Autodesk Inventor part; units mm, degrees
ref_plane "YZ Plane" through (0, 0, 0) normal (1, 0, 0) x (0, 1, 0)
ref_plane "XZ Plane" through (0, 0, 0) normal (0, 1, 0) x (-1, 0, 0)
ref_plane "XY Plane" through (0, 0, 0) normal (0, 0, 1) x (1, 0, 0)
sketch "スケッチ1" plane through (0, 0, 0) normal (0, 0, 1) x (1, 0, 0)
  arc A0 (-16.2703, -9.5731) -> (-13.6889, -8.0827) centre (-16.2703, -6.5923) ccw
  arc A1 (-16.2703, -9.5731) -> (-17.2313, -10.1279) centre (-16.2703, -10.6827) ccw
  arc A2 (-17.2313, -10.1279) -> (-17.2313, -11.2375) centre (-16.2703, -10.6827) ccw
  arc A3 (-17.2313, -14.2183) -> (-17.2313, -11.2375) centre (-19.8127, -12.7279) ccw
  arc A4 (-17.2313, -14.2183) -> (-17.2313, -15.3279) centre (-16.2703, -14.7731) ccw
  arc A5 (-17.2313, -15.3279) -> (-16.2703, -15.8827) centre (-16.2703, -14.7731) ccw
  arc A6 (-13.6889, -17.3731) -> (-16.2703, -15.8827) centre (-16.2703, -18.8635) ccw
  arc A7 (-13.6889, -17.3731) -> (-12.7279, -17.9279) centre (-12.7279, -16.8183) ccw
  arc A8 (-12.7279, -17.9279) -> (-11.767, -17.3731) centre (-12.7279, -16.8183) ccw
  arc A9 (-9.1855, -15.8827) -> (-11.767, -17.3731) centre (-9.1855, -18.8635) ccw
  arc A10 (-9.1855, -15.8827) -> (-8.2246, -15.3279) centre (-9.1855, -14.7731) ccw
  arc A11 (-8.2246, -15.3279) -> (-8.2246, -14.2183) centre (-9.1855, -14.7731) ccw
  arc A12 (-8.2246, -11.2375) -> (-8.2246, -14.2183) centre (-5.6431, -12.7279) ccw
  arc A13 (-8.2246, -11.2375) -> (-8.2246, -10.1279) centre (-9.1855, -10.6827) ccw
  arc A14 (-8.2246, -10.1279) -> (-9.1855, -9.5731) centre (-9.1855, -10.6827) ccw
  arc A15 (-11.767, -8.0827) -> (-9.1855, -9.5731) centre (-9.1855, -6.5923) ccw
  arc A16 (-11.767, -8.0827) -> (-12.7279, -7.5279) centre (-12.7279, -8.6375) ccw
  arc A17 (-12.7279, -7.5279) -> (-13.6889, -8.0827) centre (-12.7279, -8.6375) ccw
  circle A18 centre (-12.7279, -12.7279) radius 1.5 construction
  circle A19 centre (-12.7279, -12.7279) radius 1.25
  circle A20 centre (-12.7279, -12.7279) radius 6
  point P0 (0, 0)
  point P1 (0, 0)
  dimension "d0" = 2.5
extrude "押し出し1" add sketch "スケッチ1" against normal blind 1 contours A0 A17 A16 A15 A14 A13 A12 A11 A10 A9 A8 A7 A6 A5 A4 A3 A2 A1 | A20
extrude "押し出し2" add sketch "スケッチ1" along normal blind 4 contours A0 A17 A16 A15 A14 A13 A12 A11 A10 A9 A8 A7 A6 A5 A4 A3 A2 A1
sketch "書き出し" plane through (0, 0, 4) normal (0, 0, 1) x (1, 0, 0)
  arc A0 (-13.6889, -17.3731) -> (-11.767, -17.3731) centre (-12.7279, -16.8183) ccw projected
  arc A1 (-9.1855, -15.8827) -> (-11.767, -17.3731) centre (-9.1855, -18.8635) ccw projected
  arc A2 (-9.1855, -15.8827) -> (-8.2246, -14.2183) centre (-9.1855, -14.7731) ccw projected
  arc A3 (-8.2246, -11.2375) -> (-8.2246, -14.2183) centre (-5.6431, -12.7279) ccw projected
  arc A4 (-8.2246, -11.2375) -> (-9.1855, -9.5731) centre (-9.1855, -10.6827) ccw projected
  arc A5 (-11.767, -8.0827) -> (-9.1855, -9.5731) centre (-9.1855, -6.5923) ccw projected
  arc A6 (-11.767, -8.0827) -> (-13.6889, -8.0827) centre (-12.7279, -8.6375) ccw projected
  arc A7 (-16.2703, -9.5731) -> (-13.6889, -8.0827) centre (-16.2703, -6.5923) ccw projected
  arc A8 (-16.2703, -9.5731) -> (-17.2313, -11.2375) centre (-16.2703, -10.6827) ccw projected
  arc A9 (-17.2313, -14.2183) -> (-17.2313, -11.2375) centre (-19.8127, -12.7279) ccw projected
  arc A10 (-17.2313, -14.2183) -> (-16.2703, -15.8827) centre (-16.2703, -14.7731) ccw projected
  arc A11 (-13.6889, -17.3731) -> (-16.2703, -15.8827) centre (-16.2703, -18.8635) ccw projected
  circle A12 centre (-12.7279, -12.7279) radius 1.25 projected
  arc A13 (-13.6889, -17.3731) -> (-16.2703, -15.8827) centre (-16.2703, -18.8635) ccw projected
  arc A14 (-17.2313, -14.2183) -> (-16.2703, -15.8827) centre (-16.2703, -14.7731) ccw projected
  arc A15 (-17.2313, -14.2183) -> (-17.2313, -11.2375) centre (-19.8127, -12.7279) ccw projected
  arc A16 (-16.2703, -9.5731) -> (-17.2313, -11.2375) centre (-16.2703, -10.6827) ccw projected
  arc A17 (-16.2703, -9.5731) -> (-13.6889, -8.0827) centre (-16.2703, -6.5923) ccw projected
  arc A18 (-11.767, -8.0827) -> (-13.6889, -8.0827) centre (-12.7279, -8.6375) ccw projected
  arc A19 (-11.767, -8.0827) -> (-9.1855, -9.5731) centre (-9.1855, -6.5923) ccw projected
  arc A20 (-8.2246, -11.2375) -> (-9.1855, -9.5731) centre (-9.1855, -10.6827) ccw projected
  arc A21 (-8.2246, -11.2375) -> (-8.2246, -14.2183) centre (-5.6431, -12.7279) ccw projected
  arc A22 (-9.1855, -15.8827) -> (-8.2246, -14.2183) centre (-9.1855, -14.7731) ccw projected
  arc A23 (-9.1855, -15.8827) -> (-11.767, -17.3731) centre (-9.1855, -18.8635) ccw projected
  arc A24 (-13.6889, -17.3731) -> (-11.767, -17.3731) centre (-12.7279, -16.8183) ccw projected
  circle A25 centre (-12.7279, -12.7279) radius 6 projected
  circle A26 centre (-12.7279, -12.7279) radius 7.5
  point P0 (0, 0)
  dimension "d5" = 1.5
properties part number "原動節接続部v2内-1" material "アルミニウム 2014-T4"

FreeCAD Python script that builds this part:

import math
import FreeCAD as App
import Part
import Sketcher
Q = App.Units.Quantity

doc = App.newDocument("Part")
body = doc.addObject("PartDesign::Body", "Body")

sketch1 = body.newObject("Sketcher::SketchObject", "Sketch")
sketch1.AttachmentSupport = (doc.getObject("XY_Plane"), [""])
sketch1.MapMode = "FlatFace"
sketch1.addGeometry([
    Part.Circle(App.Vector(-12.7, -12.7, 0), App.Vector(0, 0, 1), 6),
    Part.Circle(App.Vector(-12.7, -12.7, 0), App.Vector(0, 0, 1), 1.2),
], False)
sketch1.addConstraint([
    Sketcher.Constraint("Coincident", 1, 3, 0, 3),
    Sketcher.Constraint("Diameter", 1, Q("2.5 mm")),
    Sketcher.Constraint("Diameter", 0, Q("12 mm")),
    Sketcher.Constraint("DistanceX", 0, 3, -1, 1, Q("12.728 mm")),
    Sketcher.Constraint("DistanceY", 0, 3, -1, 1, Q("12.728 mm")),
])
pad1 = body.newObject("PartDesign::Pad", "Pad")
pad1.Profile = sketch1
pad1.Length = 1
pad1.Reversed = True

sketch2 = body.newObject("Sketcher::SketchObject", "Sketch001")
sketch2.AttachmentSupport = (doc.getObject("XY_Plane"), [""])
sketch2.MapMode = "FlatFace"
sketch2.addGeometry([
    Part.ArcOfCircle(Part.Circle(App.Vector(-16.3, -6.6, 0), App.Vector(0, 0, 1), 3), math.radians(-90), math.radians(-30)),
    Part.ArcOfCircle(Part.Circle(App.Vector(-16.3, -10.7, 0), App.Vector(0, 0, 1), 1.1), math.radians(90), math.radians(150)),
    Part.ArcOfCircle(Part.Circle(App.Vector(-16.3, -10.7, 0), App.Vector(0, 0, 1), 1.1), math.radians(150), math.radians(210)),
    Part.ArcOfCircle(Part.Circle(App.Vector(-19.8, -12.7, 0), App.Vector(0, 0, 1), 3), math.radians(-30), math.radians(30)),
    Part.ArcOfCircle(Part.Circle(App.Vector(-16.3, -14.8, 0), App.Vector(0, 0, 1), 1.1), math.radians(150), math.radians(210)),
    Part.ArcOfCircle(Part.Circle(App.Vector(-16.3, -14.8, 0), App.Vector(0, 0, 1), 1.1), math.radians(-150), math.radians(-90)),
    Part.ArcOfCircle(Part.Circle(App.Vector(-16.3, -18.9, 0), App.Vector(0, 0, 1), 3), math.radians(30), math.radians(90)),
    Part.ArcOfCircle(Part.Circle(App.Vector(-12.7, -16.8, 0), App.Vector(0, 0, 1), 1.1), math.radians(-150), math.radians(-90)),
    Part.ArcOfCircle(Part.Circle(App.Vector(-12.7, -16.8, 0), App.Vector(0, 0, 1), 1.1), math.radians(-90), math.radians(-30)),
    Part.ArcOfCircle(Part.Circle(App.Vector(-9.2, -18.9, 0), App.Vector(0, 0, 1), 3), math.radians(90), math.radians(150)),
    Part.ArcOfCircle(Part.Circle(App.Vector(-9.2, -14.8, 0), App.Vector(0, 0, 1), 1.1), math.radians(-90), math.radians(-30)),
    Part.ArcOfCircle(Part.Circle(App.Vector(-9.2, -14.8, 0), App.Vector(0, 0, 1), 1.1), math.radians(-30), math.radians(30)),
    Part.ArcOfCircle(Part.Circle(App.Vector(-5.6, -12.7, 0), App.Vector(0, 0, 1), 3), math.radians(150), math.radians(210)),
    Part.ArcOfCircle(Part.Circle(App.Vector(-9.2, -10.7, 0), App.Vector(0, 0, 1), 1.1), math.radians(-30), math.radians(30)),
    Part.ArcOfCircle(Part.Circle(App.Vector(-9.2, -10.7, 0), App.Vector(0, 0, 1), 1.1), math.radians(30), math.radians(90)),
    Part.ArcOfCircle(Part.Circle(App.Vector(-9.2, -6.6, 0), App.Vector(0, 0, 1), 3), math.radians(-150), math.radians(-90)),
    Part.ArcOfCircle(Part.Circle(App.Vector(-12.7, -8.6, 0), App.Vector(0, 0, 1), 1.1), math.radians(30), math.radians(90)),
    Part.ArcOfCircle(Part.Circle(App.Vector(-12.7, -8.6, 0), App.Vector(0, 0, 1), 1.1), math.radians(90), math.radians(150)),
    Part.Circle(App.Vector(-12.7, -12.7, 0), App.Vector(0, 0, 1), 1.2),
], False)
sketch2.addConstraint([
    Sketcher.Constraint("Tangent", 0, 1, 1, 1),
    Sketcher.Constraint("Tangent", 1, 2, 2, 1),
    Sketcher.Constraint("Tangent", 2, 2, 3, 2),
    Sketcher.Constraint("Tangent", 3, 1, 4, 1),
    Sketcher.Constraint("Tangent", 4, 2, 5, 1),
    Sketcher.Constraint("Tangent", 5, 2, 6, 2),
    Sketcher.Constraint("Tangent", 6, 1, 7, 1),
    Sketcher.Constraint("Tangent", 7, 2, 8, 1),
    Sketcher.Constraint("Tangent", 8, 2, 9, 2),
    Sketcher.Constraint("Tangent", 9, 1, 10, 1),
    Sketcher.Constraint("Tangent", 10, 2, 11, 1),
    Sketcher.Constraint("Tangent", 11, 2, 12, 2),
    Sketcher.Constraint("Tangent", 12, 1, 13, 1),
    Sketcher.Constraint("Tangent", 13, 2, 14, 1),
    Sketcher.Constraint("Tangent", 14, 2, 15, 2),
    Sketcher.Constraint("Tangent", 15, 1, 16, 1),
    Sketcher.Constraint("Tangent", 16, 2, 17, 1),
    Sketcher.Constraint("Tangent", 17, 2, 0, 2),
    Sketcher.Constraint("Equal", 1, 2),
    Sketcher.Constraint("Equal", 0, 3),
    Sketcher.Constraint("Equal", 2, 4),
    Sketcher.Constraint("Equal", 4, 5),
    Sketcher.Constraint("Equal", 3, 6),
    Sketcher.Constraint("Equal", 5, 7),
    Sketcher.Constraint("Equal", 7, 8),
    Sketcher.Constraint("Equal", 6, 9),
    Sketcher.Constraint("Equal", 8, 10),
    Sketcher.Constraint("Equal", 10, 11),
    Sketcher.Constraint("Equal", 9, 12),
    Sketcher.Constraint("Equal", 11, 13),
    Sketcher.Constraint("Equal", 13, 14),
    Sketcher.Constraint("Equal", 12, 15),
    Sketcher.Constraint("Equal", 14, 16),
    Sketcher.Constraint("Equal", 16, 17),
    Sketcher.Constraint("Horizontal", 6, 3, 9, 3),
    Sketcher.Constraint("Horizontal", 3, 3, 12, 3),
    Sketcher.Constraint("Horizontal", 2, 3, 13, 3),
    Sketcher.Constraint("Horizontal", 12, 3, 18, 3),
    Sketcher.Constraint("Horizontal", 4, 2, 10, 2),
    Sketcher.Constraint("Horizontal", 1, 2, 13, 2),
    Sketcher.Constraint("Vertical", 0, 3, 1, 3),
    Sketcher.Constraint("Vertical", 2, 3, 4, 3),
    Sketcher.Constraint("Vertical", 5, 3, 6, 3),
    Sketcher.Constraint("Vertical", 9, 3, 10, 3),
    Sketcher.Constraint("Vertical", 14, 3, 15, 3),
    Sketcher.Constraint("Vertical", 17, 3, 18, 3),
    Sketcher.Constraint("Vertical", 1, 2, 2, 2),
    Sketcher.Constraint("Vertical", 3, 1, 4, 2),
    Sketcher.Constraint("Vertical", 18, 3, 7, 2),
    Sketcher.Constraint("Vertical", 7, 2, 16, 2),
    Sketcher.Constraint("Diameter", 18, Q("2.5 mm")),
    Sketcher.Constraint("Radius", 0, Q("2.9808 mm")),
    Sketcher.Constraint("Radius", 1, Q("1.1097 mm")),
    Sketcher.Constraint("DistanceY", 3, 3, 1, 2, Q("2.6 mm")),
    Sketcher.Constraint("DistanceY", 6, 1, 4, 3, Q("2.6 mm")),
    Sketcher.Constraint("DistanceY", 3, 3, -1, 1, Q("12.728 mm")),
    Sketcher.Constraint("DistanceX", 7, 3, -1, 1, Q("12.728 mm")),
])
pad2 = body.newObject("PartDesign::Pad", "Pad001")
pad2.Profile = sketch2
pad2.Length = 4

doc.recompute()
